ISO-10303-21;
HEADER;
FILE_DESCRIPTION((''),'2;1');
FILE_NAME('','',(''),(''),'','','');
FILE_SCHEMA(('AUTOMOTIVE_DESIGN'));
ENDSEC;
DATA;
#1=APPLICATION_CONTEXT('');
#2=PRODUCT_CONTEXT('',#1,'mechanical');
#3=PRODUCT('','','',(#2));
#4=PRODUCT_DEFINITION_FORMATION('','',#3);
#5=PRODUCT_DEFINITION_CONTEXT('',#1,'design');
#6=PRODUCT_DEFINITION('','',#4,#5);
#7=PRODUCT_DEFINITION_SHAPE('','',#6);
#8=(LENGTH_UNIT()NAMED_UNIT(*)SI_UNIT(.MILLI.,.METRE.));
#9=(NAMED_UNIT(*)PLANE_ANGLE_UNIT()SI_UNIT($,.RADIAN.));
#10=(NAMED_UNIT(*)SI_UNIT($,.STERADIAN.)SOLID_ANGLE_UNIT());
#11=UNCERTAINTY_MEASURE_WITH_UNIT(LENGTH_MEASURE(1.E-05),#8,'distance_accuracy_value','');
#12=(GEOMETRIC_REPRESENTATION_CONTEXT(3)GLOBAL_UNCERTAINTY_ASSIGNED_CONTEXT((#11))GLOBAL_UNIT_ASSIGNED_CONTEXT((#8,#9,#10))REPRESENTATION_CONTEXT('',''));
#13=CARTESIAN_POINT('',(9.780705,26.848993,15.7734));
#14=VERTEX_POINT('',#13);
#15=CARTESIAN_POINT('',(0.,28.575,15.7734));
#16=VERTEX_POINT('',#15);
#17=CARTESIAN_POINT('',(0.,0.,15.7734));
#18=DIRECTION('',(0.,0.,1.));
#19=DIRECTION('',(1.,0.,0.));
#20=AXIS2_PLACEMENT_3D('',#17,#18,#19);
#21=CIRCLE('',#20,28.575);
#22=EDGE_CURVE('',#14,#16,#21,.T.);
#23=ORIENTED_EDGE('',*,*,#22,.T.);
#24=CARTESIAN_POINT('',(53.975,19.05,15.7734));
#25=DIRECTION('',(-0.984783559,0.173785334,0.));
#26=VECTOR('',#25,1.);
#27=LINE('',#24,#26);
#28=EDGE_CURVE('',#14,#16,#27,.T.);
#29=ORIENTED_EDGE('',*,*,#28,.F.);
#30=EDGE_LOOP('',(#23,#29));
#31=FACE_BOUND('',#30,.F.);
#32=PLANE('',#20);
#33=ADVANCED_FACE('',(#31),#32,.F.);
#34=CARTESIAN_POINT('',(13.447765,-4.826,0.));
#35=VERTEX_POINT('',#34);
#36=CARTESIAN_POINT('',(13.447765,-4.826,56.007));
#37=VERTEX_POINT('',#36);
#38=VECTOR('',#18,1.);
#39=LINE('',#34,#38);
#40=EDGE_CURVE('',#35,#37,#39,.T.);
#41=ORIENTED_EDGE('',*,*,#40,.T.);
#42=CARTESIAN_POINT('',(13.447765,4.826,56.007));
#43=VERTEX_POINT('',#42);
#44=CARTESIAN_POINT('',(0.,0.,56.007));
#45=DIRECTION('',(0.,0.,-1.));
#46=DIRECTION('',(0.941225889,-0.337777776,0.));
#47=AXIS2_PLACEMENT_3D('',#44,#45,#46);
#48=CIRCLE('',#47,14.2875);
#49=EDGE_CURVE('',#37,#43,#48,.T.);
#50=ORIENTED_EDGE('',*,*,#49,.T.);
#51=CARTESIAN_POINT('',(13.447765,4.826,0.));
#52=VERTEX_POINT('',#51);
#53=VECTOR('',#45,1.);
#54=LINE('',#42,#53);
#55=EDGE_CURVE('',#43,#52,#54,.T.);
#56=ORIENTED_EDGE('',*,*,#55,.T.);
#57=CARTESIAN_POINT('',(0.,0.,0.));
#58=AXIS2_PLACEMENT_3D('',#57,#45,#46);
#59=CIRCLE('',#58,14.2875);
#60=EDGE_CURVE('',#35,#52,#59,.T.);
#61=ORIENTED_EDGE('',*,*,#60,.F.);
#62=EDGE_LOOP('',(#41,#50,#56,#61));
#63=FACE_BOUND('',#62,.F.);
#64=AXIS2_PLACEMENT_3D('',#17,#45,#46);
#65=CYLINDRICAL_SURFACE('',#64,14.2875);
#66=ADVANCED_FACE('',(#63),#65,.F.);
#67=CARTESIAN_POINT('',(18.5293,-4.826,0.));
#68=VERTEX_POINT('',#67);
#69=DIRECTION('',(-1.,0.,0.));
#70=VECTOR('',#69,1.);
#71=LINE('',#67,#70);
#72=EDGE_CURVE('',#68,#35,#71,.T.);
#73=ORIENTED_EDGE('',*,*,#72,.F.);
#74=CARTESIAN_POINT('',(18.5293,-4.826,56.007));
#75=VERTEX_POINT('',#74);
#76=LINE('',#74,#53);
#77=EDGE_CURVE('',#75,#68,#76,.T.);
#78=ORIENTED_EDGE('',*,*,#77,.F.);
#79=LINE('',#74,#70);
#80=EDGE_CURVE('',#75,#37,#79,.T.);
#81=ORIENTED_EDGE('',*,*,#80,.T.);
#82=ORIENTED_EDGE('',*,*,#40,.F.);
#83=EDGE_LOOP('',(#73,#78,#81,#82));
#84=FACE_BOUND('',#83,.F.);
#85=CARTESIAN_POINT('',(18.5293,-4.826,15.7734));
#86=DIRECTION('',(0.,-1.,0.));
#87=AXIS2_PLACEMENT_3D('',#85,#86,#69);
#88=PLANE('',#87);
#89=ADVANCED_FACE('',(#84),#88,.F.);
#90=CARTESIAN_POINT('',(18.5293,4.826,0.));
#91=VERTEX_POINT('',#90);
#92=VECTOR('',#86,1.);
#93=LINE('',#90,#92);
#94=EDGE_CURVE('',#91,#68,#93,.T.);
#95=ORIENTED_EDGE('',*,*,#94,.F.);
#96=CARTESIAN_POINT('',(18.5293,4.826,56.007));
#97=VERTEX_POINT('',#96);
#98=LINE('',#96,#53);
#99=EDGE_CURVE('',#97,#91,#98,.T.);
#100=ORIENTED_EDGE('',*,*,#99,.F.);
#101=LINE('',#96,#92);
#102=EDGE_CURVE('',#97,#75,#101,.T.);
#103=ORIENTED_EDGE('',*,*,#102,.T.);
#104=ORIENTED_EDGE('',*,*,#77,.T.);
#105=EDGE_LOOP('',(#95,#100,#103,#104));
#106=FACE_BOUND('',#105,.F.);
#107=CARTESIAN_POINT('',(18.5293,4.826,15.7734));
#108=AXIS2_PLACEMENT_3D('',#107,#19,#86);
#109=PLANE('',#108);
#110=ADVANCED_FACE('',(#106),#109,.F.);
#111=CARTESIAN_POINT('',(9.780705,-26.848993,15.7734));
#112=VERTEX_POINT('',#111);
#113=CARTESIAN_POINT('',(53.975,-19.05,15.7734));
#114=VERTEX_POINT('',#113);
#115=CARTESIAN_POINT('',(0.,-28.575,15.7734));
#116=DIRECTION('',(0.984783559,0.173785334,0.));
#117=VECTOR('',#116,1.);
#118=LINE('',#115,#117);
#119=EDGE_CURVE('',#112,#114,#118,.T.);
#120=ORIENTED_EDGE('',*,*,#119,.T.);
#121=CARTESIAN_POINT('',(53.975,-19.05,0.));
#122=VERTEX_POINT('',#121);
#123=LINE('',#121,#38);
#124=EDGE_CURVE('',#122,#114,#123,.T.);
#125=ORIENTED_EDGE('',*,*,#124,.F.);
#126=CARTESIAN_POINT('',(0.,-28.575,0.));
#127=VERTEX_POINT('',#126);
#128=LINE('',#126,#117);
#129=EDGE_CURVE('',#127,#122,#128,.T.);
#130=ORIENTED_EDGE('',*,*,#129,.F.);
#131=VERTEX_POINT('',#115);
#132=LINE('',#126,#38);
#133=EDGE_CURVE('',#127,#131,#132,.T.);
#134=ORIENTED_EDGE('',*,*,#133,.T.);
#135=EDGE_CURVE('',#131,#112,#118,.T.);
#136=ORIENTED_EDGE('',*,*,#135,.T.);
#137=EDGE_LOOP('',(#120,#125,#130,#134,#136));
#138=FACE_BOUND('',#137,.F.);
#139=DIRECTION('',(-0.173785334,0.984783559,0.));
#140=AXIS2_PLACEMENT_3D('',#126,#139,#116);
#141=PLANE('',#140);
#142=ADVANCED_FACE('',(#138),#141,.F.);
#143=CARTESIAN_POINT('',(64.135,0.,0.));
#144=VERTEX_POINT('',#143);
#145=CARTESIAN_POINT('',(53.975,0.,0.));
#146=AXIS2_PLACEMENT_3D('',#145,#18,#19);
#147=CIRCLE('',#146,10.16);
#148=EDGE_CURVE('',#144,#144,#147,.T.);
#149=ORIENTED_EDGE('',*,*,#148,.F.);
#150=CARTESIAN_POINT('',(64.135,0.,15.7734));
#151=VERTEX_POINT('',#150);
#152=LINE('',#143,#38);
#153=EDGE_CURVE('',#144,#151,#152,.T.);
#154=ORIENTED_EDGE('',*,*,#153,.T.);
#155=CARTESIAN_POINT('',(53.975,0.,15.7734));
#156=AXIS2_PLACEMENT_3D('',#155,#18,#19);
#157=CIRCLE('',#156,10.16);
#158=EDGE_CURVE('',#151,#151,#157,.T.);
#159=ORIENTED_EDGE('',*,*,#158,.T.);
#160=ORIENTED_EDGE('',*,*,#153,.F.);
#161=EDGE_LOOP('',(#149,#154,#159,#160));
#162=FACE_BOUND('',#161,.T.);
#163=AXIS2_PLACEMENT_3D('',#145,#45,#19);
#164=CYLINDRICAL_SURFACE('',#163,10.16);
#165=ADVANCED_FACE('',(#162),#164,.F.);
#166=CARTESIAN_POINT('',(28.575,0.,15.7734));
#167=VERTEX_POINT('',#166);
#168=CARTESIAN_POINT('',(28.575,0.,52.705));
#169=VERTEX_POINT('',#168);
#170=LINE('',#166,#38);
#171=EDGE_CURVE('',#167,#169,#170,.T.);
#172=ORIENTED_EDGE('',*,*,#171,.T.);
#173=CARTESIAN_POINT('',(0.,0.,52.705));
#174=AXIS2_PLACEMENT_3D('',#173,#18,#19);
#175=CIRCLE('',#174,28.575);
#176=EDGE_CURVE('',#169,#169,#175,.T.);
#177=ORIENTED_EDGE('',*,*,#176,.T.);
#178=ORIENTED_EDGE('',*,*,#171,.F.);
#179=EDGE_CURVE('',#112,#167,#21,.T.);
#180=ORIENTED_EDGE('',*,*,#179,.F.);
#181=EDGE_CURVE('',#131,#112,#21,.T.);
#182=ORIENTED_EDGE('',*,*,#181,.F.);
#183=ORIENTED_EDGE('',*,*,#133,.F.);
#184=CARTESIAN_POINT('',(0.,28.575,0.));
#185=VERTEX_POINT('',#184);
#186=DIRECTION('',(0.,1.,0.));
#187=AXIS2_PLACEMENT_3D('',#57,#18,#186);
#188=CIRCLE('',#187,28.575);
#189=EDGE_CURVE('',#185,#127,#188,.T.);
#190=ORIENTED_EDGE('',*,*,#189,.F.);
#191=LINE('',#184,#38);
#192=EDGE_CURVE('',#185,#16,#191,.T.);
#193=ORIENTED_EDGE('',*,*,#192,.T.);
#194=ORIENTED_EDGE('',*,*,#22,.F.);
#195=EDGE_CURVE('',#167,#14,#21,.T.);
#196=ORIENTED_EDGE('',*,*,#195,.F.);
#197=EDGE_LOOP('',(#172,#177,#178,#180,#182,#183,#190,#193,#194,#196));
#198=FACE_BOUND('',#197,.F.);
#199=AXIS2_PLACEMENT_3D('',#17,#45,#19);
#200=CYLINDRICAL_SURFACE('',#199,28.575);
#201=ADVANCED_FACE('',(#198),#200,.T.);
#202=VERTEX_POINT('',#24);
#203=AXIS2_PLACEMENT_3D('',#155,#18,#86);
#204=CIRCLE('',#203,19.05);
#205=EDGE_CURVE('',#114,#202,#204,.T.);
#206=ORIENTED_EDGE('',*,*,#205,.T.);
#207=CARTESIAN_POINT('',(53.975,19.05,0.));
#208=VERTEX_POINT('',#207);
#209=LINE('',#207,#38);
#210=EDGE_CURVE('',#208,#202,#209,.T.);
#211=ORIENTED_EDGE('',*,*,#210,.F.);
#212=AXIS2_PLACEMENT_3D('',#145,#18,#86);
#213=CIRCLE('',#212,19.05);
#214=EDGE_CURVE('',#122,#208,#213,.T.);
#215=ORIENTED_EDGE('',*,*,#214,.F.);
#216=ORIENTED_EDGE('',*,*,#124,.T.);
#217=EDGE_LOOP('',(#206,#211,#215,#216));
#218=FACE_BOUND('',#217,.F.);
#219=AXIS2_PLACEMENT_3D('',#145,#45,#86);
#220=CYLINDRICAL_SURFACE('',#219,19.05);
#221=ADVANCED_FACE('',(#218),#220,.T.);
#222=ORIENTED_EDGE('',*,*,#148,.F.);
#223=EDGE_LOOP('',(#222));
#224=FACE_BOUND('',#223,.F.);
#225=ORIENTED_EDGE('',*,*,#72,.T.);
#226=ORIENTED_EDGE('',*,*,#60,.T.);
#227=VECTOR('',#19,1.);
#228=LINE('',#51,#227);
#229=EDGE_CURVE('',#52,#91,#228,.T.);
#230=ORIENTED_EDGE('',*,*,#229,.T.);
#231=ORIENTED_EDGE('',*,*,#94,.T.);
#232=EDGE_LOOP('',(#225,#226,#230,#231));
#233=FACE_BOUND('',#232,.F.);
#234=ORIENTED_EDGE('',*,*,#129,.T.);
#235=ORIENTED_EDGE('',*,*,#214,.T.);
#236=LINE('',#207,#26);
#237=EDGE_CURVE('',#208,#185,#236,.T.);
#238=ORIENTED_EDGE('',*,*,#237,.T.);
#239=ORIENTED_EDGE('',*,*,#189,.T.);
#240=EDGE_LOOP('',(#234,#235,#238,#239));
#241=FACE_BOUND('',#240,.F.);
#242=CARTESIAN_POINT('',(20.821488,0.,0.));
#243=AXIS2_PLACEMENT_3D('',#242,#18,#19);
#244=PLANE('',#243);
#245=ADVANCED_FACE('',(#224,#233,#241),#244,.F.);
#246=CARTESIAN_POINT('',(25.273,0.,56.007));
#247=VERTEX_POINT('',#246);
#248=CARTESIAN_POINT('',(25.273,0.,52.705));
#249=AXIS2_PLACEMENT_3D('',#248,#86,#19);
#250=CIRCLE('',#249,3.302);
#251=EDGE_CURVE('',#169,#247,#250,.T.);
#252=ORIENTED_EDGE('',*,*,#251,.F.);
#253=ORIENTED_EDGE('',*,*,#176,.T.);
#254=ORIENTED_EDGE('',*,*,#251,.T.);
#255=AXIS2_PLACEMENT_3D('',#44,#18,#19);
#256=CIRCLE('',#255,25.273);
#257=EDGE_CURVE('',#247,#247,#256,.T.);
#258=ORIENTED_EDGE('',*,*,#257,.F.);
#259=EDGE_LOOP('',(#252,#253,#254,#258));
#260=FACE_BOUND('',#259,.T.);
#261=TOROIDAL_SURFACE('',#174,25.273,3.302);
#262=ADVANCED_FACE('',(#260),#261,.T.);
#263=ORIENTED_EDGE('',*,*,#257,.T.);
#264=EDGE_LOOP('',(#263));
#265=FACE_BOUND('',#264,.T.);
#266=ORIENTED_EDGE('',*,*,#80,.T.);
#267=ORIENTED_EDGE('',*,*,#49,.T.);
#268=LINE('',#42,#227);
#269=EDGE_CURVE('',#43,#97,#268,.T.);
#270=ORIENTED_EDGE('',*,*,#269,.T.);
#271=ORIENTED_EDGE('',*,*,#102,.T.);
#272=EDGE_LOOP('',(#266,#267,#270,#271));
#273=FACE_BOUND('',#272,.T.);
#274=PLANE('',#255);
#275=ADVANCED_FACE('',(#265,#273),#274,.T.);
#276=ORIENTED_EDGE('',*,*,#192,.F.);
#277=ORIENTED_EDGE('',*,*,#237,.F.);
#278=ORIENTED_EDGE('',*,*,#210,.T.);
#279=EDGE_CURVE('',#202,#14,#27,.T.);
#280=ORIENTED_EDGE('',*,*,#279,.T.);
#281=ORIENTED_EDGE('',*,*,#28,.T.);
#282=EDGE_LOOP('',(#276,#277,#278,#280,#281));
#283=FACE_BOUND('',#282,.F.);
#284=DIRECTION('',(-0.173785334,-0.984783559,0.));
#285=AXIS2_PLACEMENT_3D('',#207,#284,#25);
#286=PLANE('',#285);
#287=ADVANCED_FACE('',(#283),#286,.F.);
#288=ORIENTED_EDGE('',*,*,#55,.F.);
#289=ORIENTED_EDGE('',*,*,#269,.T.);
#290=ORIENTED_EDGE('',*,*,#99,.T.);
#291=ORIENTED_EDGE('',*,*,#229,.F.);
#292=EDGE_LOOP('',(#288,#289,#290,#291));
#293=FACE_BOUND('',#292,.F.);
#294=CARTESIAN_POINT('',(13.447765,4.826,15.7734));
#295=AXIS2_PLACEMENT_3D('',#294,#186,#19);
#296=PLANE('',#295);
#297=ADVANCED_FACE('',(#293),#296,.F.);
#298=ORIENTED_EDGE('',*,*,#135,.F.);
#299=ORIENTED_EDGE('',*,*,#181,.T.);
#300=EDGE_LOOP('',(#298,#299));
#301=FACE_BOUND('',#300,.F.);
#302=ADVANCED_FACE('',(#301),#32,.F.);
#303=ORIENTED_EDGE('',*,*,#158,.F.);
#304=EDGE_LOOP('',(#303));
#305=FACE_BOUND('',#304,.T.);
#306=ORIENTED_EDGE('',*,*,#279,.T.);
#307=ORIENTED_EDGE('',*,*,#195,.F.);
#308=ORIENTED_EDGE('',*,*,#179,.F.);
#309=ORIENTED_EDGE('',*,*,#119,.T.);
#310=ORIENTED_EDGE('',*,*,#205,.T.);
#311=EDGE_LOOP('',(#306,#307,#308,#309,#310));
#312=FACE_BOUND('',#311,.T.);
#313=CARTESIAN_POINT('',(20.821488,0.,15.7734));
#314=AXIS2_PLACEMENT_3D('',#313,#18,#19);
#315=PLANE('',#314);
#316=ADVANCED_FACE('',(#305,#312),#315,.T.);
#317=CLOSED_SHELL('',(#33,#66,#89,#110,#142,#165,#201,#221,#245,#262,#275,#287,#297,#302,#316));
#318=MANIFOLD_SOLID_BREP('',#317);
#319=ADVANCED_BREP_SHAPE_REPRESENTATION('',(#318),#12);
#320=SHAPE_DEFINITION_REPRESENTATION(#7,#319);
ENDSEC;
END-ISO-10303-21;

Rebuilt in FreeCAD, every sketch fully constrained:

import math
import FreeCAD as App
import Part
import Sketcher

V = App.Vector
Q = App.Units.Quantity


def edges_at(feature, points):
    """Names of the edges that pass closest to the given points."""
    edges = feature.Shape.Edges
    near = lambda p: min(range(len(edges)), key=lambda i: edges[i].distToShape(Part.Vertex(*p))[0])
    return sorted({f"Edge{near(p) + 1}" for p in points})

doc = App.newDocument("Part")
body = doc.addObject("PartDesign::Body", "Body")

sketch1 = body.newObject("Sketcher::SketchObject", "Sketch")
sketch1.AttachmentSupport = (doc.getObject("XY_Plane"), [""])
sketch1.MapMode = "FlatFace"
sketch1.addGeometry([
    Part.LineSegment(V(53.975, 19.05, 0), V(0, 28.575, 0)),
    Part.ArcOfCircle(Part.Circle(V(0, 0, 0), V(0, 0, 1), 28.575), math.radians(90), math.radians(270)),
    Part.LineSegment(V(0, -28.575, 0), V(53.975, -19.05, 0)),
    Part.ArcOfCircle(Part.Circle(V(53.975, 0, 0), V(0, 0, 1), 19.05), math.radians(-90), math.radians(90)),
    Part.LineSegment(V(18.5293, -4.826, 0), V(13.447765, -4.826, 0)),
    Part.ArcOfCircle(Part.Circle(V(0, 0, 0), V(0, 0, 1), 14.2875), math.radians(19.741542), math.radians(340.258458)),
    Part.LineSegment(V(13.447765, 4.826, 0), V(18.5293, 4.826, 0)),
    Part.LineSegment(V(18.5293, 4.826, 0), V(18.5293, -4.826, 0)),
    Part.Circle(V(53.975, 0, 0), V(0, 0, 1), 10.16),
], False)
sketch1.addConstraint([
    Sketcher.Constraint("Coincident", 0, 2, 1, 1),
    Sketcher.Constraint("Coincident", 1, 2, 2, 1),
    Sketcher.Constraint("Coincident", 2, 2, 3, 1),
    Sketcher.Constraint("Coincident", 3, 2, 0, 1),
    Sketcher.Constraint("Coincident", 4, 2, 5, 2),
    Sketcher.Constraint("Coincident", 5, 1, 6, 1),
    Sketcher.Constraint("Coincident", 6, 2, 7, 1),
    Sketcher.Constraint("Coincident", 7, 2, 4, 1),
    Sketcher.Constraint("Horizontal", 4),
    Sketcher.Constraint("Horizontal", 6),
    Sketcher.Constraint("Vertical", 7),
    Sketcher.Constraint("Coincident", 1, 3, -1, 1),
    Sketcher.Constraint("Coincident", 5, 3, -1, 1),
    Sketcher.Constraint("Coincident", 8, 3, 3, 3),
    Sketcher.Constraint("Symmetric", 2, 2, 3, 2, -1),
    Sketcher.Constraint("PointOnObject", 0, 2, -2),
    Sketcher.Constraint("PointOnObject", 1, 2, -2),
    Sketcher.Constraint("Vertical", 8, 3, 2, 2),
    Sketcher.Constraint("Vertical", 4, 2, 5, 1),
    Sketcher.Constraint("Diameter", 8, Q("0.8 in")),
    Sketcher.Constraint("Radius", 3, Q("0.75 in")),
    Sketcher.Constraint("Radius", 1, Q("1.125 in")),
    Sketcher.Constraint("Radius", 5, Q("0.5625 in")),
    Sketcher.Constraint("DistanceY", 7, 2, 7, 1, Q("0.38 in")),
    Sketcher.Constraint("DistanceX", -1, 1, 3, 3, Q("2.125 in")),
    Sketcher.Constraint("DistanceX", -1, 1, 6, 2, Q("0.7295 in")),
])
pad1 = body.newObject("PartDesign::Pad", "Pad")
pad1.Profile = sketch1
pad1.Length = Q("0.621 in")

sketch2 = body.newObject("Sketcher::SketchObject", "Sketch001")
sketch2.AttachmentSupport = (doc.getObject("XY_Plane"), [""])
sketch2.MapMode = "FlatFace"
sketch2.AttachmentOffset = App.Placement(V(0, 0, 0.621 * 25.4), App.Rotation())
sketch2.addGeometry([
    Part.Circle(V(0, 0, 0), V(0, 0, 1), 28.575),
    Part.LineSegment(V(18.5293, -4.826, 0), V(13.447765, -4.826, 0)),
    Part.ArcOfCircle(Part.Circle(V(0, 0, 0), V(0, 0, 1), 14.2875), math.radians(19.741542), math.radians(340.258458)),
    Part.LineSegment(V(13.447765, 4.826, 0), V(18.5293, 4.826, 0)),
    Part.LineSegment(V(18.5293, 4.826, 0), V(18.5293, -4.826, 0)),
], False)
sketch2.addConstraint([
    Sketcher.Constraint("Coincident", 1, 2, 2, 2),
    Sketcher.Constraint("Coincident", 2, 1, 3, 1),
    Sketcher.Constraint("Coincident", 3, 2, 4, 1),
    Sketcher.Constraint("Coincident", 4, 2, 1, 1),
    Sketcher.Constraint("Horizontal", 1),
    Sketcher.Constraint("Horizontal", 3),
    Sketcher.Constraint("Vertical", 4),
    Sketcher.Constraint("Coincident", 0, 3, -1, 1),
    Sketcher.Constraint("Coincident", 2, 3, -1, 1),
    Sketcher.Constraint("Vertical", 1, 2, 2, 1),
    Sketcher.Constraint("Diameter", 0, Q("2.25 in")),
    Sketcher.Constraint("Radius", 2, Q("0.5625 in")),
    Sketcher.Constraint("DistanceY", 4, 2, 4, 1, Q("0.38 in")),
    Sketcher.Constraint("DistanceX", -1, 1, 3, 2, Q("0.7295 in")),
])
pad2 = body.newObject("PartDesign::Pad", "Pad001")
pad2.Profile = sketch2
pad2.Length = Q("1.584 in")
doc.recompute()

fillet = body.newObject("PartDesign::Fillet", "Fillet")
fillet.Base = (pad2, edges_at(pad2, [(-28.575, 0, 56.007)]))
fillet.Radius = Q("0.13 in")

doc.recompute()
